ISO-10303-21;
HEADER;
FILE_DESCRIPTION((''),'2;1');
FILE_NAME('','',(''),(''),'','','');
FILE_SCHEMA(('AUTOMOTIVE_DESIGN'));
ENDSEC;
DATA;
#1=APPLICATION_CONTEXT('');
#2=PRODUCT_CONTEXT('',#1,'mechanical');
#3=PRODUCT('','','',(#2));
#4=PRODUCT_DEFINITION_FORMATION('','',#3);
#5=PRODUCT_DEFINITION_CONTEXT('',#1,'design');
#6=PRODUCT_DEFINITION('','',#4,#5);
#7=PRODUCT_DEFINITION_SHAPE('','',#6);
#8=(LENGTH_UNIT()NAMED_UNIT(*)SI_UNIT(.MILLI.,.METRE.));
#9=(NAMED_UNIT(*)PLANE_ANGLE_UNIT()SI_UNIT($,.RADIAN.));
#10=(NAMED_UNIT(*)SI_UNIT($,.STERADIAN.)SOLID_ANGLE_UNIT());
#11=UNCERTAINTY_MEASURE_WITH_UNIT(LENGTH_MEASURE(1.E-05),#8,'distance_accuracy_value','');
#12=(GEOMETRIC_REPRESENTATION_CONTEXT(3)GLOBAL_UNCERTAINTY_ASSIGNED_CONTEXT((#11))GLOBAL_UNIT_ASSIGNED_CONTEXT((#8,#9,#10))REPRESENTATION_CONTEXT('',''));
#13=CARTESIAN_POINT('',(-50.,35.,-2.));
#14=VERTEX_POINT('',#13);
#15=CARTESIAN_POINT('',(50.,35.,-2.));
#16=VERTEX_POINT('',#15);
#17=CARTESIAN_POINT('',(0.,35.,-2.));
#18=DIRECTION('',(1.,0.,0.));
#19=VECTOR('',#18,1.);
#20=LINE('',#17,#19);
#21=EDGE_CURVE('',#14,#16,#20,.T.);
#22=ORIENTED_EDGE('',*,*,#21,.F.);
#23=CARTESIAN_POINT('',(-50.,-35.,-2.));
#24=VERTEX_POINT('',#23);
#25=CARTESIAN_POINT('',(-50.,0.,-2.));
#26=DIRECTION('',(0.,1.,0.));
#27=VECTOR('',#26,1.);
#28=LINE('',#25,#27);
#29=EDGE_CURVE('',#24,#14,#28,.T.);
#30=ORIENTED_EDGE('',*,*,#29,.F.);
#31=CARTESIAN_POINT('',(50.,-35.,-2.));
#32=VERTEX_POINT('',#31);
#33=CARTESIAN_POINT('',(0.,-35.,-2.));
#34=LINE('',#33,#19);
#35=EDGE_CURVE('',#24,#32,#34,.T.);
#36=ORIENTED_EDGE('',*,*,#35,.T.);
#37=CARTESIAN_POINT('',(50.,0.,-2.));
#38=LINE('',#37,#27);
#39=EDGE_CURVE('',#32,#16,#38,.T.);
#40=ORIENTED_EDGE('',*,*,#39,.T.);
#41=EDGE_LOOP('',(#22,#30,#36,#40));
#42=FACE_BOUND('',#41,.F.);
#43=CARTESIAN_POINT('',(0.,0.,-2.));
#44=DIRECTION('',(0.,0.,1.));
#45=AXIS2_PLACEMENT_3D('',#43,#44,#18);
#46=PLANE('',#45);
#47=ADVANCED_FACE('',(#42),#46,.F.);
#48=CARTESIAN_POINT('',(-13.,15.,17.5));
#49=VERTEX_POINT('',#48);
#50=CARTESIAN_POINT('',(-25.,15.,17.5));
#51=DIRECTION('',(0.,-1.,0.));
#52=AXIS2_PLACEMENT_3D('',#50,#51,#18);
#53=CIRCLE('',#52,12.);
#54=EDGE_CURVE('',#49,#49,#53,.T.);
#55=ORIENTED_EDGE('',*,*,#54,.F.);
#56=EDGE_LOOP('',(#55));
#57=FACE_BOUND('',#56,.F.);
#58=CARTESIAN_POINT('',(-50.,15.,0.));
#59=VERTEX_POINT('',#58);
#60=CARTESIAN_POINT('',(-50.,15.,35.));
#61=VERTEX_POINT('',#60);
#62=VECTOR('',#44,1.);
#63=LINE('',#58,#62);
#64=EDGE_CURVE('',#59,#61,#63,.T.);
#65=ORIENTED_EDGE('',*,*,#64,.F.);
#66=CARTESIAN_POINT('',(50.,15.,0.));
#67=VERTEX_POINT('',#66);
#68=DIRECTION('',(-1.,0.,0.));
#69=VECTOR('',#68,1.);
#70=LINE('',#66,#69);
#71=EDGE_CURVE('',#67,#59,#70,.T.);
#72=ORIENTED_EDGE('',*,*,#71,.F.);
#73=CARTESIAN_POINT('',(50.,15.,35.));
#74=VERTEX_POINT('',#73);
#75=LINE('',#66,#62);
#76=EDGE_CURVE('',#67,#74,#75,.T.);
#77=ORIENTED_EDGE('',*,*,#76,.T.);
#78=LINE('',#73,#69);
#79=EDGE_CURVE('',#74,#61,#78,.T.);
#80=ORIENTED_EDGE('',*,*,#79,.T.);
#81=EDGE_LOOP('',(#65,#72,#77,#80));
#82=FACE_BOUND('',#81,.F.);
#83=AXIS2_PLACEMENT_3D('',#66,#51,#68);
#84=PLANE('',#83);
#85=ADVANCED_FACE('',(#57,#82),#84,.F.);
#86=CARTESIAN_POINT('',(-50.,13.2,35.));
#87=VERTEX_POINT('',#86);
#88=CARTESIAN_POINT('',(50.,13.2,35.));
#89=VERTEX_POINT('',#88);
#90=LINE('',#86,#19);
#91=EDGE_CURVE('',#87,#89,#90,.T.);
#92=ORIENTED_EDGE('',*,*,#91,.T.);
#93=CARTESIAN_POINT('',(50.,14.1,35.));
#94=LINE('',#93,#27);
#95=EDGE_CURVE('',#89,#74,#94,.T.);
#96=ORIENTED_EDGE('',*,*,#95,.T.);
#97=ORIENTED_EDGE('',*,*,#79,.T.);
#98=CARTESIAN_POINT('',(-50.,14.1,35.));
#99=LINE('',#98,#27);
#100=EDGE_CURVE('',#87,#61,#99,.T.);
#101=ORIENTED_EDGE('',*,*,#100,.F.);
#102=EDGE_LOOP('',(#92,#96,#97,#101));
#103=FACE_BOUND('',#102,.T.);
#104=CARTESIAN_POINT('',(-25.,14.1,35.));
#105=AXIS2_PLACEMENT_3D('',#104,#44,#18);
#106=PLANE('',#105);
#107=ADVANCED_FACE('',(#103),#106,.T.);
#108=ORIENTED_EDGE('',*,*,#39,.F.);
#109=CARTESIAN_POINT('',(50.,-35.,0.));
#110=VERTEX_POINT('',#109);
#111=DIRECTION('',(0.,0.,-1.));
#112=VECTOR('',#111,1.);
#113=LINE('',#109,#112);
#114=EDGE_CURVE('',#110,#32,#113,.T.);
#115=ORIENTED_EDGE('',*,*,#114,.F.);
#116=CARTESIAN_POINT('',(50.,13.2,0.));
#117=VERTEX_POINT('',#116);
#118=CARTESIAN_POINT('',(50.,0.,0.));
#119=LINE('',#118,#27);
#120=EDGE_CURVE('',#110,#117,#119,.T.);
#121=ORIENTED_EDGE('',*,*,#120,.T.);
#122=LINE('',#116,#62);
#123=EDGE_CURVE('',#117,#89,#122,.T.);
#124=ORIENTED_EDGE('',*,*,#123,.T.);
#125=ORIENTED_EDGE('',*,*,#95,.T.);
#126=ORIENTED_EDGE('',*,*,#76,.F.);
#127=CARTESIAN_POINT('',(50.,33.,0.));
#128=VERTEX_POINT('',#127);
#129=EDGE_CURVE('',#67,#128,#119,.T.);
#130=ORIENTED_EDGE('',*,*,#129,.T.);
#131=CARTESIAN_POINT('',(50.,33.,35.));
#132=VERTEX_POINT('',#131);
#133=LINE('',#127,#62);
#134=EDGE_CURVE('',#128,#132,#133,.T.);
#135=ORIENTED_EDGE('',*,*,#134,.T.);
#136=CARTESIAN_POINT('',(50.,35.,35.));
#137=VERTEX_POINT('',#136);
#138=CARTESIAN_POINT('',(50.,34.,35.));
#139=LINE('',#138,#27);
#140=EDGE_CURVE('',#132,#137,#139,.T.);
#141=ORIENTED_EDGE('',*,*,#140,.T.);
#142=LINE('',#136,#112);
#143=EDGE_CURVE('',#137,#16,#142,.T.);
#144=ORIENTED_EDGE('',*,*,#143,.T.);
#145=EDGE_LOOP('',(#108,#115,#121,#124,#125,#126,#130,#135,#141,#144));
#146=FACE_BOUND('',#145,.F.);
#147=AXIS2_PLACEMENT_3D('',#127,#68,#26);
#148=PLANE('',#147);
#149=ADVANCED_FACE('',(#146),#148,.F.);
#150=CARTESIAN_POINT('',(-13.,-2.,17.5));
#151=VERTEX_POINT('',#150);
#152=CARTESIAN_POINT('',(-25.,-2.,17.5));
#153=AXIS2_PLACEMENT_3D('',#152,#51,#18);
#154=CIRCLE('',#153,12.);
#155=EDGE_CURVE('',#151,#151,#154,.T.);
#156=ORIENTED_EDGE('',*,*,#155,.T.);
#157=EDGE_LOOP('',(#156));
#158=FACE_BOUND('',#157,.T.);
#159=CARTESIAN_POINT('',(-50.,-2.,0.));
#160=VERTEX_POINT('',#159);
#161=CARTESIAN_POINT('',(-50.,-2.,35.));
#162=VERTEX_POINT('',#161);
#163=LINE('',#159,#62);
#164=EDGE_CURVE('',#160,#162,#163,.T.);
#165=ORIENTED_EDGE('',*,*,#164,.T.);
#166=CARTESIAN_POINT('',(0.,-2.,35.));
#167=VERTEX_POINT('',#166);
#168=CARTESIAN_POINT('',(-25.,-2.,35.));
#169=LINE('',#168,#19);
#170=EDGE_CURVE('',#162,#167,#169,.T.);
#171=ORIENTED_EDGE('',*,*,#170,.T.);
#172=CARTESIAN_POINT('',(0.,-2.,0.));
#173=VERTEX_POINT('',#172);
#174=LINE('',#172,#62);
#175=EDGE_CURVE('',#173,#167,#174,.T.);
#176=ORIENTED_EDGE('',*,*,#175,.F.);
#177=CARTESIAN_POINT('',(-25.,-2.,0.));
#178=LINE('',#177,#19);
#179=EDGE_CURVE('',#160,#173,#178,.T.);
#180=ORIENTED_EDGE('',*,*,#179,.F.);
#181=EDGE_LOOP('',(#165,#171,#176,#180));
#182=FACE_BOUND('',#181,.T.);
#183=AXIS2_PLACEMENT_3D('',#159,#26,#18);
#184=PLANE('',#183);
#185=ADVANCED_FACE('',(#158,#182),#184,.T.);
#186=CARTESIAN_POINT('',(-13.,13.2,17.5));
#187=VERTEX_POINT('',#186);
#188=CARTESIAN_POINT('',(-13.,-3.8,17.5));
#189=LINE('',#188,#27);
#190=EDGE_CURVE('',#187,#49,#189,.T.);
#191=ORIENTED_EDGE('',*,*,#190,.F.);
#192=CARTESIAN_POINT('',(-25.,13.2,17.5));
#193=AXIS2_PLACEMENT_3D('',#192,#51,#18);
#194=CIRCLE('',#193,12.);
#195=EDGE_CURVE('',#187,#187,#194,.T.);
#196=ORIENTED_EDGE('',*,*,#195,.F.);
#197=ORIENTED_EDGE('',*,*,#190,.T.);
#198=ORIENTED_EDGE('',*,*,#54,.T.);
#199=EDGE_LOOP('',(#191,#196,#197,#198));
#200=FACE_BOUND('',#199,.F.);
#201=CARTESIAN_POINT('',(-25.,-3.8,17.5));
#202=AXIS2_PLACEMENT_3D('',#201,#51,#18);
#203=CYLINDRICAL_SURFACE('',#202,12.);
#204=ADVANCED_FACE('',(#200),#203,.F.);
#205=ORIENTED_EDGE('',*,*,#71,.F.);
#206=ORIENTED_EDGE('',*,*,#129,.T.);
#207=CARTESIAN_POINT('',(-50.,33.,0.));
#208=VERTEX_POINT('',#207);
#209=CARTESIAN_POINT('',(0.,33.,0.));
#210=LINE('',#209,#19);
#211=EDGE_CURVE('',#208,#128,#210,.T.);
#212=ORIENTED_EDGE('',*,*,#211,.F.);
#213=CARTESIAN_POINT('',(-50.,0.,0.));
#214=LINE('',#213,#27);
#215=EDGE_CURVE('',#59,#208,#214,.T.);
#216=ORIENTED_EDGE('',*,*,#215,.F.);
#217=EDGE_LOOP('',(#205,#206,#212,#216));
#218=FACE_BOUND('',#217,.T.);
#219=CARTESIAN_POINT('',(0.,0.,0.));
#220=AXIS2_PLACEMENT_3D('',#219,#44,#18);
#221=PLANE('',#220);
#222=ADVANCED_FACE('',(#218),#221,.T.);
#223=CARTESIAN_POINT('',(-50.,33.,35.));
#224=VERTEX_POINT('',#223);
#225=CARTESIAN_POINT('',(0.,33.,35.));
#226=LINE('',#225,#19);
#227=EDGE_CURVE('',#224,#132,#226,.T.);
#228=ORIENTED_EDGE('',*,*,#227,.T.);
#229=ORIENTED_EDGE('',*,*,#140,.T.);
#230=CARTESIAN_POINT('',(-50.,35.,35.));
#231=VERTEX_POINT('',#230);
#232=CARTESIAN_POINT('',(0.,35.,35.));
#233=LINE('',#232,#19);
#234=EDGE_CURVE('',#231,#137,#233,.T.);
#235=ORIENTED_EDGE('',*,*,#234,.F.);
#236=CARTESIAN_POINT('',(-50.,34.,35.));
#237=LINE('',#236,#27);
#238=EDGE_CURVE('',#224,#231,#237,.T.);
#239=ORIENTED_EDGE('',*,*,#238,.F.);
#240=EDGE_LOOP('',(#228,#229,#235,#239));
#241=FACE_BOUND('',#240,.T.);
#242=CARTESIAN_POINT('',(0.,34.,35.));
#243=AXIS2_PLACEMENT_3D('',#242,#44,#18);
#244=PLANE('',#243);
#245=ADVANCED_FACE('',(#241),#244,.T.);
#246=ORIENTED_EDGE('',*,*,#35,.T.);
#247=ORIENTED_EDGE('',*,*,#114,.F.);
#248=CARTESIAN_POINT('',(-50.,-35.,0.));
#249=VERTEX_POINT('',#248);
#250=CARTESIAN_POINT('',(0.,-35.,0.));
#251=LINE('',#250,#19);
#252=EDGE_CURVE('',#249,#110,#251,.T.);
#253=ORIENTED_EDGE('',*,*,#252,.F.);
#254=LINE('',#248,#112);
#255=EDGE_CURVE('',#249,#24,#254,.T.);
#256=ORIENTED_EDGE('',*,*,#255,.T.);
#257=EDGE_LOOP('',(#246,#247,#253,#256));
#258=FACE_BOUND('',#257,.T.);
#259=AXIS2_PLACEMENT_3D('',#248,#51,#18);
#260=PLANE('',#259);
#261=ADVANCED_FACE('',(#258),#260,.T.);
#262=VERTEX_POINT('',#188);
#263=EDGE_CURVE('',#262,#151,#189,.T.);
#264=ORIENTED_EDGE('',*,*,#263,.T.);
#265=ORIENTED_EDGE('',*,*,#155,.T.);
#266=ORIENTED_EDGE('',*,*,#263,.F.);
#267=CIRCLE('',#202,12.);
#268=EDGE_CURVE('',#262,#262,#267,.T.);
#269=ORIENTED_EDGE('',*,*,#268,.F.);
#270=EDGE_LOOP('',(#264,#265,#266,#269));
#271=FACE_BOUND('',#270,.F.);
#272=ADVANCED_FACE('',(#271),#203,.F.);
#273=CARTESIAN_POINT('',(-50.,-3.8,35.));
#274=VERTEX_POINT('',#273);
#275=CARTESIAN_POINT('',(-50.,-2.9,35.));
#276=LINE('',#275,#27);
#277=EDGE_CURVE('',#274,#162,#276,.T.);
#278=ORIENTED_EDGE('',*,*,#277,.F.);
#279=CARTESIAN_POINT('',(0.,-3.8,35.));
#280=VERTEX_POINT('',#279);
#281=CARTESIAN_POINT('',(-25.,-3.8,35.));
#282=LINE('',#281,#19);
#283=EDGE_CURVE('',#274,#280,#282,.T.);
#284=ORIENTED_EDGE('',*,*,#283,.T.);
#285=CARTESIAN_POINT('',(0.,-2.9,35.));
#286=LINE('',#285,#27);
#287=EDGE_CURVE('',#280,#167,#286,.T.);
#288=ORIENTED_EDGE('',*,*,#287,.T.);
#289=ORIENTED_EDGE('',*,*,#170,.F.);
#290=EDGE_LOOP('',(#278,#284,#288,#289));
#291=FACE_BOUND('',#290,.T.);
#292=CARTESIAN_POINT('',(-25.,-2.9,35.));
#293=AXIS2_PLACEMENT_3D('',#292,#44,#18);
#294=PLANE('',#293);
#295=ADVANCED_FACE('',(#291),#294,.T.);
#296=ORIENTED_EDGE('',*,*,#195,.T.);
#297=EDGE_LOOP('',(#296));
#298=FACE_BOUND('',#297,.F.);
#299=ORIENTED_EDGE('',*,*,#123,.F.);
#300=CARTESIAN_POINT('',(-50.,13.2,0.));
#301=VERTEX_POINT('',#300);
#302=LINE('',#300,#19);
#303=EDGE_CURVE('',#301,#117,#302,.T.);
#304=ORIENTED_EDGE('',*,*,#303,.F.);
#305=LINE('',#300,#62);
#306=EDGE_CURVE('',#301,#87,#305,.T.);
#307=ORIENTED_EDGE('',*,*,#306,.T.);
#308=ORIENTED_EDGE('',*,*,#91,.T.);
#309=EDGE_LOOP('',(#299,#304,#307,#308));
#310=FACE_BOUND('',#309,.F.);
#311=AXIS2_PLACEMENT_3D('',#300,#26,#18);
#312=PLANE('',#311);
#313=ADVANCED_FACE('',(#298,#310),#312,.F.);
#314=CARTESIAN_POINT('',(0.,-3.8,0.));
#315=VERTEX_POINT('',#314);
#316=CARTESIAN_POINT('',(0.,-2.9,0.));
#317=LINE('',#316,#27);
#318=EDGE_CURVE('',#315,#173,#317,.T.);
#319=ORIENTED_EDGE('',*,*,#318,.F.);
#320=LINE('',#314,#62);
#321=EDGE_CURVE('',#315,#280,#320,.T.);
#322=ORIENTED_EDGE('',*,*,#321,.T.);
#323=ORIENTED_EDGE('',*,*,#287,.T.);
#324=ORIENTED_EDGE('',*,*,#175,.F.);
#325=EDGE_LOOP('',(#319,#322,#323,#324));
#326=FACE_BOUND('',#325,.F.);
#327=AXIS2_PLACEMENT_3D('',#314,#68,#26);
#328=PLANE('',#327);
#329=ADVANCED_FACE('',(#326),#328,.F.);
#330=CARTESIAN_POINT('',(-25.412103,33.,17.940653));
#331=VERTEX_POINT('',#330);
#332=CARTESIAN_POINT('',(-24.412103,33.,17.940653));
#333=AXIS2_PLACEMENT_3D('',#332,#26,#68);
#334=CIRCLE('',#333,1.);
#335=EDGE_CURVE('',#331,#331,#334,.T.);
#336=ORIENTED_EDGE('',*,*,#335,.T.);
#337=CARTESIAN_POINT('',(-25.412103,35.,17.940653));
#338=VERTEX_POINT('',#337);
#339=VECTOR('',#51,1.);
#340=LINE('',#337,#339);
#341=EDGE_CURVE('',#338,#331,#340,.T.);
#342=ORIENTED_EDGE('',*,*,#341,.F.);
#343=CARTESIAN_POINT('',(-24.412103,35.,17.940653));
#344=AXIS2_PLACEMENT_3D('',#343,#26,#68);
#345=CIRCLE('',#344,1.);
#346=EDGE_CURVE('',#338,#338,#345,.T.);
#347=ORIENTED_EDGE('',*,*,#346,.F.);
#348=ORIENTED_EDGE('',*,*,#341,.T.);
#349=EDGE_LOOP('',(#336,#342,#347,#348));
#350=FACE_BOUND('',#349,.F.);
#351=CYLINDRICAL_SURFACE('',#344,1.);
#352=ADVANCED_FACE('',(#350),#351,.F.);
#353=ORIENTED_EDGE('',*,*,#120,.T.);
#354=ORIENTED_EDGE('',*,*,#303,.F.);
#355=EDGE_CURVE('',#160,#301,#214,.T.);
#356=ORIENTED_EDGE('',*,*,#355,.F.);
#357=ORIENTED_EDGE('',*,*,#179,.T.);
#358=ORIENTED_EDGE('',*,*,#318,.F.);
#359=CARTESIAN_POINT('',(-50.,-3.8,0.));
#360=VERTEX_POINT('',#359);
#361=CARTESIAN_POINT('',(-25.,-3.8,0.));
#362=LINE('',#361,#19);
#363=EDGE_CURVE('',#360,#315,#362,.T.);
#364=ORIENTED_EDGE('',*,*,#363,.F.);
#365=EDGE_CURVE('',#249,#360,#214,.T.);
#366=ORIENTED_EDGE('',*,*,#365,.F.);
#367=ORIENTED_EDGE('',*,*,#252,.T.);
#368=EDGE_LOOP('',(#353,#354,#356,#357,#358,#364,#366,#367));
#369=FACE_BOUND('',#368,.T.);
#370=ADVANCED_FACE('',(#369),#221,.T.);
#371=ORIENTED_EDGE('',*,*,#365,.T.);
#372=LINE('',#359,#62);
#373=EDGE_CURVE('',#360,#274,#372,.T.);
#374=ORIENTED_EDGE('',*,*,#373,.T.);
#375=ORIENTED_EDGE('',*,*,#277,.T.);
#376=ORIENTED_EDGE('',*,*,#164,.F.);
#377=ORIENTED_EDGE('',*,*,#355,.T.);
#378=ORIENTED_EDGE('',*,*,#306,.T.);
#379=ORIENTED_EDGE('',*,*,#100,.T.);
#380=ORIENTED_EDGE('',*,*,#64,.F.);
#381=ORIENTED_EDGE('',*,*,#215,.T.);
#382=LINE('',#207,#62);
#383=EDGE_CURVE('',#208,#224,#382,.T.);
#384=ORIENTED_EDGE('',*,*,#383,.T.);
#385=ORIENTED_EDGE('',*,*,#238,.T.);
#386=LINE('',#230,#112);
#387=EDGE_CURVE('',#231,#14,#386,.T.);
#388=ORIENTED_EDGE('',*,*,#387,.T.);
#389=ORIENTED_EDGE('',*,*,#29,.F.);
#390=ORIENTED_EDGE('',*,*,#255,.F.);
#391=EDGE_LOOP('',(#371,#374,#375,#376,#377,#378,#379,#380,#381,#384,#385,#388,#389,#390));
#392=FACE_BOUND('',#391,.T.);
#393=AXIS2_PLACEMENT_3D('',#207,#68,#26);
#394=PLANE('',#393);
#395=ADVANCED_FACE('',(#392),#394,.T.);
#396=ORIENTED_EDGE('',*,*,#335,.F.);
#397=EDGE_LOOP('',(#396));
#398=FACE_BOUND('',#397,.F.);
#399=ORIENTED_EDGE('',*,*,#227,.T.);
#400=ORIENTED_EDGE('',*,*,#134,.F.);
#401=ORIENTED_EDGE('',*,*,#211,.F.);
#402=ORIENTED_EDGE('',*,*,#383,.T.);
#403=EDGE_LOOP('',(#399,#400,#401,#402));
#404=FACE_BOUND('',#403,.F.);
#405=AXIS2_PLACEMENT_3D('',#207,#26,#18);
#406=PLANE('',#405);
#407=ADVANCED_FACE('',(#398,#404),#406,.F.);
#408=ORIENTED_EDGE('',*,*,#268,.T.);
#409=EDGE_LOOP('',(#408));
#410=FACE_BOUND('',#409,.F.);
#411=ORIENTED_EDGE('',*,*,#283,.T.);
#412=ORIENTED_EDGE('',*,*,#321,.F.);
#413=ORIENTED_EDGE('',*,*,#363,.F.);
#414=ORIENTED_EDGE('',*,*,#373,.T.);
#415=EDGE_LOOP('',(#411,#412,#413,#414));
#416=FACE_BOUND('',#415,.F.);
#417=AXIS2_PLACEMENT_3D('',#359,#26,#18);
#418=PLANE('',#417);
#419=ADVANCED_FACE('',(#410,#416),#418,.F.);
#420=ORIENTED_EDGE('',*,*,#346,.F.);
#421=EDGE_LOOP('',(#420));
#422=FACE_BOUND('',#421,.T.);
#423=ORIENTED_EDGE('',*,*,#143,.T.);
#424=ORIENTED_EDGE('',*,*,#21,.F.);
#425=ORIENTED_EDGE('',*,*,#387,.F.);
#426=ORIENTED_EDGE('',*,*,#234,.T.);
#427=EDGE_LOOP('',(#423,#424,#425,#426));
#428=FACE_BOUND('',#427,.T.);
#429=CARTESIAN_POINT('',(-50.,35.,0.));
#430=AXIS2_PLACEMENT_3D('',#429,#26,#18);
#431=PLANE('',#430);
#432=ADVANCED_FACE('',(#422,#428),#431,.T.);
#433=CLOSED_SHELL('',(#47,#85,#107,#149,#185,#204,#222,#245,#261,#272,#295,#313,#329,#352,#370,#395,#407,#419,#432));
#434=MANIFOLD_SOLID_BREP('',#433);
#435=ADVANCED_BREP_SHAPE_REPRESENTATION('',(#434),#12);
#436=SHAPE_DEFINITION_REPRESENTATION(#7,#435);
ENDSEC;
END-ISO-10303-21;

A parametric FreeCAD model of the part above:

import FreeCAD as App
import Part
import Sketcher

V = App.Vector


def add_polygon(sketch, points):
    """Adds a closed chain of lines whose ends are joined by coincident constraints."""
    first, n = sketch.GeometryCount, len(points)
    for a, b in zip(points, points[1:] + points[:1]):
        sketch.addGeometry(Part.LineSegment(App.Vector(*a, 0), App.Vector(*b, 0)), False)
    for i in range(n):
        sketch.addConstraint(Sketcher.Constraint("Coincident", first + i, 2, first + (i + 1) % n, 1))

doc = App.newDocument("Part")
body = doc.addObject("PartDesign::Body", "Body")

# Sketch on XY plane
sketch1 = body.newObject("Sketcher::SketchObject", "Sketch")
sketch1.AttachmentSupport = (doc.getObject("XY_Plane"), [""])
sketch1.MapMode = "FlatFace"
add_polygon(sketch1, [(-50, 35), (-50, -35), (50, -35), (50, 35)])  # lines 0-3
sketch1.addConstraint([
    Sketcher.Constraint("Vertical", 0),
    Sketcher.Constraint("Horizontal", 1),
    Sketcher.Constraint("Vertical", 2),
    Sketcher.Constraint("Horizontal", 3),
    Sketcher.Constraint("Symmetric", 0, 2, 2, 2, -1, 1),
    Sketcher.Constraint("DistanceX", 1, 1, 1, 2, 100.0),
    Sketcher.Constraint("DistanceY", 0, 2, 0, 1, 70.0),
])
pad1 = body.newObject("PartDesign::Pad", "Pad")
pad1.Profile = sketch1
pad1.Length = 2
pad1.Reversed = True

# Sketch on XY plane
sketch2 = body.newObject("Sketcher::SketchObject", "Sketch001")
sketch2.AttachmentSupport = (doc.getObject("XY_Plane"), [""])
sketch2.MapMode = "FlatFace"
add_polygon(sketch2, [(-50, 35), (-50, 33), (50, 33), (50, 35)])  # lines 0-3
add_polygon(sketch2, [(-50, 15), (-50, 13.2), (50, 13.2), (50, 15)])  # lines 4-7
add_polygon(sketch2, [(-50, -2), (-50, -3.8), (0, -3.8), (0, -2)])  # lines 8-11
sketch2.addConstraint([
    Sketcher.Constraint("Vertical", 0),
    Sketcher.Constraint("Horizontal", 1),
    Sketcher.Constraint("Vertical", 2),
    Sketcher.Constraint("Horizontal", 3),
    Sketcher.Constraint("Vertical", 4),
    Sketcher.Constraint("Horizontal", 5),
    Sketcher.Constraint("Vertical", 6),
    Sketcher.Constraint("Horizontal", 7),
    Sketcher.Constraint("Vertical", 8),
    Sketcher.Constraint("Horizontal", 9),
    Sketcher.Constraint("Vertical", 10),
    Sketcher.Constraint("Horizontal", 11),
    Sketcher.Constraint("PointOnObject", 9, 2, -2),
    Sketcher.Constraint("Vertical", 3, 2, 4, 2),
    Sketcher.Constraint("Vertical", 2, 2, 5, 2),
    Sketcher.Constraint("Vertical", 7, 2, 8, 2),
    Sketcher.Constraint("Equal", 6, 8),
    Sketcher.Constraint("DistanceX", 1, 1, 1, 2, 100.0),
    Sketcher.Constraint("DistanceX", 9, 1, 9, 2, 50.0),
    Sketcher.Constraint("DistanceY", 0, 2, 0, 1, 2.0),
    Sketcher.Constraint("DistanceY", 4, 2, 4, 1, 1.8),
    Sketcher.Constraint("DistanceY", -1, 1, 0, 2, 33.0),
    Sketcher.Constraint("DistanceY", -1, 1, 6, 2, 15.0),
    Sketcher.Constraint("DistanceY", 10, 2, -1, 1, 2.0),
])
pad2 = body.newObject("PartDesign::Pad", "Pad001")
pad2.Profile = sketch2
pad2.Length = 35

# Sketch on XZ plane
sketch3 = body.newObject("Sketcher::SketchObject", "Sketch002")
sketch3.AttachmentSupport = (doc.getObject("XZ_Plane"), [""])
sketch3.MapMode = "FlatFace"
sketch3.AttachmentOffset = App.Placement(V(0, 0, 3.8), App.Rotation())
sketch3.addGeometry(Part.Circle(V(-25, 17.5, 0), V(0, 0, 1), 12), False)
sketch3.addConstraint([
    Sketcher.Constraint("Diameter", 0, 24.0),
    Sketcher.Constraint("DistanceX", 0, 3, -1, 1, 25.0),
    Sketcher.Constraint("DistanceY", -1, 1, 0, 3, 17.5),
])
pocket1 = body.newObject("PartDesign::Pocket", "Pocket")
pocket1.Profile = sketch3
pocket1.Length = 25

# Sketch on XZ plane
sketch4 = body.newObject("Sketcher::SketchObject", "Sketch003")
sketch4.AttachmentSupport = (doc.getObject("XZ_Plane"), [""])
sketch4.MapMode = "FlatFace"
sketch4.AttachmentOffset = App.Placement(V(0, 0, -35), App.Rotation())
sketch4.addGeometry(Part.Circle(V(-24.412103, 17.940653, 0), V(0, 0, 1), 1), False)
sketch4.addConstraint([
    Sketcher.Constraint("Diameter", 0, 2.0),
    Sketcher.Constraint("DistanceX", 0, 3, -1, 1, 24.412103),
    Sketcher.Constraint("DistanceY", -1, 1, 0, 3, 17.940653),
])
pocket2 = body.newObject("PartDesign::Pocket", "Pocket001")
pocket2.Profile = sketch4
pocket2.Length = 5.1
pocket2.Reversed = True

doc.recompute()
